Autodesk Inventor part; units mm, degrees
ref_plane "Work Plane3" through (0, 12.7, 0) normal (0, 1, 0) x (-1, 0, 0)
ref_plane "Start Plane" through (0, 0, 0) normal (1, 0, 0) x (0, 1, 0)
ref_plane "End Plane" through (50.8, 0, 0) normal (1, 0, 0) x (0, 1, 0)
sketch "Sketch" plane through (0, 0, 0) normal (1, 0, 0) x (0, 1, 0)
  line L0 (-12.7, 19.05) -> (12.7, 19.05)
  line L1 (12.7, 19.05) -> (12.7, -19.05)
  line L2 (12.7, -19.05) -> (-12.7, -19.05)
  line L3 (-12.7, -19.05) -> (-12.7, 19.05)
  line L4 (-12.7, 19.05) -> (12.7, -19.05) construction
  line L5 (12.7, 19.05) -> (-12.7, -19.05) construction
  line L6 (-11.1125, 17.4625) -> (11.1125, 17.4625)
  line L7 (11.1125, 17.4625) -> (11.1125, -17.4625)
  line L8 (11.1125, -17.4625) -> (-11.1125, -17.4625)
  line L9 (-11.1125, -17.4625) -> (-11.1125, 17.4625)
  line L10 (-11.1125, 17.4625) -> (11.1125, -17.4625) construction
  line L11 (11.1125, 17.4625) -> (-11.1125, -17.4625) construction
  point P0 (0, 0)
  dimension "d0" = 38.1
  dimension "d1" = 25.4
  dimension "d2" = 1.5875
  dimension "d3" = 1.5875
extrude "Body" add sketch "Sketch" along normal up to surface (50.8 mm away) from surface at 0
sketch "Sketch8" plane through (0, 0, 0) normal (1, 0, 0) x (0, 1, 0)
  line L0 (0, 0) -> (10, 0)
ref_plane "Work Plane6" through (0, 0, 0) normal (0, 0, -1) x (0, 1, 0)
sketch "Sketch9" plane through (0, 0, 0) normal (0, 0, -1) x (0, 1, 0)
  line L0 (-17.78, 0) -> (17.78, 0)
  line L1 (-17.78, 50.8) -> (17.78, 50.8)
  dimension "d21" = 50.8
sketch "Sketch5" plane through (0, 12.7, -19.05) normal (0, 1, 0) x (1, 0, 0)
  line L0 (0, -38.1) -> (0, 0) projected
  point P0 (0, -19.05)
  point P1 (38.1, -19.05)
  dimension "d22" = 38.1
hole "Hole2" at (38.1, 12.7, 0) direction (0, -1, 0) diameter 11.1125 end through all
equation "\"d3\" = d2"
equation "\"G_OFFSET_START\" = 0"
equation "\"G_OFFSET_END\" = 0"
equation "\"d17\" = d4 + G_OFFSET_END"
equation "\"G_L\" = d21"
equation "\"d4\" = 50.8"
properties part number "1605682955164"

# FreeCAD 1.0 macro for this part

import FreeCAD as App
import Part
import Sketcher

V = App.Vector
Q = App.Units.Quantity

doc = App.newDocument("Part")
body = doc.addObject("PartDesign::Body", "Body")

# Sketch on YZ plane
sketch1 = doc.addObject("Sketcher::SketchObject", "Sketch")
body.addObject(sketch1)
sketch1.AttachmentSupport = (doc.YZ_Plane, [""])
sketch1.MapMode = "FlatFace"
sketch1.addGeometry([
    Part.LineSegment(V(12.7, 19.05, 0), V(-12.7, 19.05, 0)),  # 0
    Part.LineSegment(V(-12.7, 19.05, 0), V(-12.7, -19.05, 0)),  # 1
    Part.LineSegment(V(-12.7, -19.05, 0), V(12.7, -19.05, 0)),  # 2
    Part.LineSegment(V(12.7, -19.05, 0), V(12.7, 19.05, 0)),  # 3
    Part.LineSegment(V(-11.1125, -17.4625, 0), V(-11.1125, 17.4625, 0)),  # 4
    Part.LineSegment(V(-11.1125, 17.4625, 0), V(11.1125, 17.4625, 0)),  # 5
    Part.LineSegment(V(11.1125, 17.4625, 0), V(11.1125, -17.4625, 0)),  # 6
    Part.LineSegment(V(11.1125, -17.4625, 0), V(-11.1125, -17.4625, 0)),  # 7
], False)
sketch1.addConstraint([
    Sketcher.Constraint("Coincident", 0, 2, 1, 1),
    Sketcher.Constraint("Coincident", 1, 2, 2, 1),
    Sketcher.Constraint("Coincident", 2, 2, 3, 1),
    Sketcher.Constraint("Coincident", 3, 2, 0, 1),
    Sketcher.Constraint("Coincident", 4, 2, 5, 1),
    Sketcher.Constraint("Coincident", 5, 2, 6, 1),
    Sketcher.Constraint("Coincident", 6, 2, 7, 1),
    Sketcher.Constraint("Coincident", 7, 2, 4, 1),
    Sketcher.Constraint("Horizontal", 0),
    Sketcher.Constraint("Vertical", 1),
    Sketcher.Constraint("Horizontal", 2),
    Sketcher.Constraint("Vertical", 3),
    Sketcher.Constraint("Vertical", 4),
    Sketcher.Constraint("Horizontal", 5),
    Sketcher.Constraint("Vertical", 6),
    Sketcher.Constraint("Horizontal", 7),
    Sketcher.Constraint("Symmetric", 0, 2, 2, 2, -1, 1),
    Sketcher.Constraint("Symmetric", 4, 2, 6, 2, -1, 1),
    Sketcher.Constraint("DistanceX", 0, 2, 0, 1, Q("1 in")),
    Sketcher.Constraint("DistanceY", 1, 2, 1, 1, Q("1.5 in")),
    Sketcher.Constraint("DistanceX", 0, 2, 4, 2, Q("0.0625 in")),
    Sketcher.Constraint("DistanceY", 4, 2, 0, 2, Q("0.0625 in")),
])
pad1 = doc.addObject("PartDesign::Pad", "Pad")
body.addObject(pad1)
pad1.Profile = sketch1
pad1.Length = Q("2 in")

# Sketch on XZ plane
sketch2 = doc.addObject("Sketcher::SketchObject", "Sketch001")
body.addObject(sketch2)
sketch2.AttachmentSupport = (doc.XZ_Plane, [""])
sketch2.MapMode = "FlatFace"
sketch2.AttachmentOffset = App.Placement(V(0, 0, -0.5 * 25.4), App.Rotation())
sketch2.addGeometry(Part.Circle(V(38.1, 0, 0), V(0, 0, 1), 5.55625), False)
sketch2.addConstraint([
    Sketcher.Constraint("PointOnObject", 0, 3, -1),
    Sketcher.Constraint("Diameter", 0, Q("0.4375 in")),
    Sketcher.Constraint("DistanceX", -1, 1, 0, 3, Q("1.5 in")),
])
doc.recompute()
hole = doc.addObject("PartDesign::Hole", "Hole")
body.addObject(hole)
hole.Profile = sketch2
hole.ThreadType = "None"
hole.Diameter = Q("0.4375 in")
hole.DepthType = "ThroughAll"
hole.Reversed = True

doc.recompute()
